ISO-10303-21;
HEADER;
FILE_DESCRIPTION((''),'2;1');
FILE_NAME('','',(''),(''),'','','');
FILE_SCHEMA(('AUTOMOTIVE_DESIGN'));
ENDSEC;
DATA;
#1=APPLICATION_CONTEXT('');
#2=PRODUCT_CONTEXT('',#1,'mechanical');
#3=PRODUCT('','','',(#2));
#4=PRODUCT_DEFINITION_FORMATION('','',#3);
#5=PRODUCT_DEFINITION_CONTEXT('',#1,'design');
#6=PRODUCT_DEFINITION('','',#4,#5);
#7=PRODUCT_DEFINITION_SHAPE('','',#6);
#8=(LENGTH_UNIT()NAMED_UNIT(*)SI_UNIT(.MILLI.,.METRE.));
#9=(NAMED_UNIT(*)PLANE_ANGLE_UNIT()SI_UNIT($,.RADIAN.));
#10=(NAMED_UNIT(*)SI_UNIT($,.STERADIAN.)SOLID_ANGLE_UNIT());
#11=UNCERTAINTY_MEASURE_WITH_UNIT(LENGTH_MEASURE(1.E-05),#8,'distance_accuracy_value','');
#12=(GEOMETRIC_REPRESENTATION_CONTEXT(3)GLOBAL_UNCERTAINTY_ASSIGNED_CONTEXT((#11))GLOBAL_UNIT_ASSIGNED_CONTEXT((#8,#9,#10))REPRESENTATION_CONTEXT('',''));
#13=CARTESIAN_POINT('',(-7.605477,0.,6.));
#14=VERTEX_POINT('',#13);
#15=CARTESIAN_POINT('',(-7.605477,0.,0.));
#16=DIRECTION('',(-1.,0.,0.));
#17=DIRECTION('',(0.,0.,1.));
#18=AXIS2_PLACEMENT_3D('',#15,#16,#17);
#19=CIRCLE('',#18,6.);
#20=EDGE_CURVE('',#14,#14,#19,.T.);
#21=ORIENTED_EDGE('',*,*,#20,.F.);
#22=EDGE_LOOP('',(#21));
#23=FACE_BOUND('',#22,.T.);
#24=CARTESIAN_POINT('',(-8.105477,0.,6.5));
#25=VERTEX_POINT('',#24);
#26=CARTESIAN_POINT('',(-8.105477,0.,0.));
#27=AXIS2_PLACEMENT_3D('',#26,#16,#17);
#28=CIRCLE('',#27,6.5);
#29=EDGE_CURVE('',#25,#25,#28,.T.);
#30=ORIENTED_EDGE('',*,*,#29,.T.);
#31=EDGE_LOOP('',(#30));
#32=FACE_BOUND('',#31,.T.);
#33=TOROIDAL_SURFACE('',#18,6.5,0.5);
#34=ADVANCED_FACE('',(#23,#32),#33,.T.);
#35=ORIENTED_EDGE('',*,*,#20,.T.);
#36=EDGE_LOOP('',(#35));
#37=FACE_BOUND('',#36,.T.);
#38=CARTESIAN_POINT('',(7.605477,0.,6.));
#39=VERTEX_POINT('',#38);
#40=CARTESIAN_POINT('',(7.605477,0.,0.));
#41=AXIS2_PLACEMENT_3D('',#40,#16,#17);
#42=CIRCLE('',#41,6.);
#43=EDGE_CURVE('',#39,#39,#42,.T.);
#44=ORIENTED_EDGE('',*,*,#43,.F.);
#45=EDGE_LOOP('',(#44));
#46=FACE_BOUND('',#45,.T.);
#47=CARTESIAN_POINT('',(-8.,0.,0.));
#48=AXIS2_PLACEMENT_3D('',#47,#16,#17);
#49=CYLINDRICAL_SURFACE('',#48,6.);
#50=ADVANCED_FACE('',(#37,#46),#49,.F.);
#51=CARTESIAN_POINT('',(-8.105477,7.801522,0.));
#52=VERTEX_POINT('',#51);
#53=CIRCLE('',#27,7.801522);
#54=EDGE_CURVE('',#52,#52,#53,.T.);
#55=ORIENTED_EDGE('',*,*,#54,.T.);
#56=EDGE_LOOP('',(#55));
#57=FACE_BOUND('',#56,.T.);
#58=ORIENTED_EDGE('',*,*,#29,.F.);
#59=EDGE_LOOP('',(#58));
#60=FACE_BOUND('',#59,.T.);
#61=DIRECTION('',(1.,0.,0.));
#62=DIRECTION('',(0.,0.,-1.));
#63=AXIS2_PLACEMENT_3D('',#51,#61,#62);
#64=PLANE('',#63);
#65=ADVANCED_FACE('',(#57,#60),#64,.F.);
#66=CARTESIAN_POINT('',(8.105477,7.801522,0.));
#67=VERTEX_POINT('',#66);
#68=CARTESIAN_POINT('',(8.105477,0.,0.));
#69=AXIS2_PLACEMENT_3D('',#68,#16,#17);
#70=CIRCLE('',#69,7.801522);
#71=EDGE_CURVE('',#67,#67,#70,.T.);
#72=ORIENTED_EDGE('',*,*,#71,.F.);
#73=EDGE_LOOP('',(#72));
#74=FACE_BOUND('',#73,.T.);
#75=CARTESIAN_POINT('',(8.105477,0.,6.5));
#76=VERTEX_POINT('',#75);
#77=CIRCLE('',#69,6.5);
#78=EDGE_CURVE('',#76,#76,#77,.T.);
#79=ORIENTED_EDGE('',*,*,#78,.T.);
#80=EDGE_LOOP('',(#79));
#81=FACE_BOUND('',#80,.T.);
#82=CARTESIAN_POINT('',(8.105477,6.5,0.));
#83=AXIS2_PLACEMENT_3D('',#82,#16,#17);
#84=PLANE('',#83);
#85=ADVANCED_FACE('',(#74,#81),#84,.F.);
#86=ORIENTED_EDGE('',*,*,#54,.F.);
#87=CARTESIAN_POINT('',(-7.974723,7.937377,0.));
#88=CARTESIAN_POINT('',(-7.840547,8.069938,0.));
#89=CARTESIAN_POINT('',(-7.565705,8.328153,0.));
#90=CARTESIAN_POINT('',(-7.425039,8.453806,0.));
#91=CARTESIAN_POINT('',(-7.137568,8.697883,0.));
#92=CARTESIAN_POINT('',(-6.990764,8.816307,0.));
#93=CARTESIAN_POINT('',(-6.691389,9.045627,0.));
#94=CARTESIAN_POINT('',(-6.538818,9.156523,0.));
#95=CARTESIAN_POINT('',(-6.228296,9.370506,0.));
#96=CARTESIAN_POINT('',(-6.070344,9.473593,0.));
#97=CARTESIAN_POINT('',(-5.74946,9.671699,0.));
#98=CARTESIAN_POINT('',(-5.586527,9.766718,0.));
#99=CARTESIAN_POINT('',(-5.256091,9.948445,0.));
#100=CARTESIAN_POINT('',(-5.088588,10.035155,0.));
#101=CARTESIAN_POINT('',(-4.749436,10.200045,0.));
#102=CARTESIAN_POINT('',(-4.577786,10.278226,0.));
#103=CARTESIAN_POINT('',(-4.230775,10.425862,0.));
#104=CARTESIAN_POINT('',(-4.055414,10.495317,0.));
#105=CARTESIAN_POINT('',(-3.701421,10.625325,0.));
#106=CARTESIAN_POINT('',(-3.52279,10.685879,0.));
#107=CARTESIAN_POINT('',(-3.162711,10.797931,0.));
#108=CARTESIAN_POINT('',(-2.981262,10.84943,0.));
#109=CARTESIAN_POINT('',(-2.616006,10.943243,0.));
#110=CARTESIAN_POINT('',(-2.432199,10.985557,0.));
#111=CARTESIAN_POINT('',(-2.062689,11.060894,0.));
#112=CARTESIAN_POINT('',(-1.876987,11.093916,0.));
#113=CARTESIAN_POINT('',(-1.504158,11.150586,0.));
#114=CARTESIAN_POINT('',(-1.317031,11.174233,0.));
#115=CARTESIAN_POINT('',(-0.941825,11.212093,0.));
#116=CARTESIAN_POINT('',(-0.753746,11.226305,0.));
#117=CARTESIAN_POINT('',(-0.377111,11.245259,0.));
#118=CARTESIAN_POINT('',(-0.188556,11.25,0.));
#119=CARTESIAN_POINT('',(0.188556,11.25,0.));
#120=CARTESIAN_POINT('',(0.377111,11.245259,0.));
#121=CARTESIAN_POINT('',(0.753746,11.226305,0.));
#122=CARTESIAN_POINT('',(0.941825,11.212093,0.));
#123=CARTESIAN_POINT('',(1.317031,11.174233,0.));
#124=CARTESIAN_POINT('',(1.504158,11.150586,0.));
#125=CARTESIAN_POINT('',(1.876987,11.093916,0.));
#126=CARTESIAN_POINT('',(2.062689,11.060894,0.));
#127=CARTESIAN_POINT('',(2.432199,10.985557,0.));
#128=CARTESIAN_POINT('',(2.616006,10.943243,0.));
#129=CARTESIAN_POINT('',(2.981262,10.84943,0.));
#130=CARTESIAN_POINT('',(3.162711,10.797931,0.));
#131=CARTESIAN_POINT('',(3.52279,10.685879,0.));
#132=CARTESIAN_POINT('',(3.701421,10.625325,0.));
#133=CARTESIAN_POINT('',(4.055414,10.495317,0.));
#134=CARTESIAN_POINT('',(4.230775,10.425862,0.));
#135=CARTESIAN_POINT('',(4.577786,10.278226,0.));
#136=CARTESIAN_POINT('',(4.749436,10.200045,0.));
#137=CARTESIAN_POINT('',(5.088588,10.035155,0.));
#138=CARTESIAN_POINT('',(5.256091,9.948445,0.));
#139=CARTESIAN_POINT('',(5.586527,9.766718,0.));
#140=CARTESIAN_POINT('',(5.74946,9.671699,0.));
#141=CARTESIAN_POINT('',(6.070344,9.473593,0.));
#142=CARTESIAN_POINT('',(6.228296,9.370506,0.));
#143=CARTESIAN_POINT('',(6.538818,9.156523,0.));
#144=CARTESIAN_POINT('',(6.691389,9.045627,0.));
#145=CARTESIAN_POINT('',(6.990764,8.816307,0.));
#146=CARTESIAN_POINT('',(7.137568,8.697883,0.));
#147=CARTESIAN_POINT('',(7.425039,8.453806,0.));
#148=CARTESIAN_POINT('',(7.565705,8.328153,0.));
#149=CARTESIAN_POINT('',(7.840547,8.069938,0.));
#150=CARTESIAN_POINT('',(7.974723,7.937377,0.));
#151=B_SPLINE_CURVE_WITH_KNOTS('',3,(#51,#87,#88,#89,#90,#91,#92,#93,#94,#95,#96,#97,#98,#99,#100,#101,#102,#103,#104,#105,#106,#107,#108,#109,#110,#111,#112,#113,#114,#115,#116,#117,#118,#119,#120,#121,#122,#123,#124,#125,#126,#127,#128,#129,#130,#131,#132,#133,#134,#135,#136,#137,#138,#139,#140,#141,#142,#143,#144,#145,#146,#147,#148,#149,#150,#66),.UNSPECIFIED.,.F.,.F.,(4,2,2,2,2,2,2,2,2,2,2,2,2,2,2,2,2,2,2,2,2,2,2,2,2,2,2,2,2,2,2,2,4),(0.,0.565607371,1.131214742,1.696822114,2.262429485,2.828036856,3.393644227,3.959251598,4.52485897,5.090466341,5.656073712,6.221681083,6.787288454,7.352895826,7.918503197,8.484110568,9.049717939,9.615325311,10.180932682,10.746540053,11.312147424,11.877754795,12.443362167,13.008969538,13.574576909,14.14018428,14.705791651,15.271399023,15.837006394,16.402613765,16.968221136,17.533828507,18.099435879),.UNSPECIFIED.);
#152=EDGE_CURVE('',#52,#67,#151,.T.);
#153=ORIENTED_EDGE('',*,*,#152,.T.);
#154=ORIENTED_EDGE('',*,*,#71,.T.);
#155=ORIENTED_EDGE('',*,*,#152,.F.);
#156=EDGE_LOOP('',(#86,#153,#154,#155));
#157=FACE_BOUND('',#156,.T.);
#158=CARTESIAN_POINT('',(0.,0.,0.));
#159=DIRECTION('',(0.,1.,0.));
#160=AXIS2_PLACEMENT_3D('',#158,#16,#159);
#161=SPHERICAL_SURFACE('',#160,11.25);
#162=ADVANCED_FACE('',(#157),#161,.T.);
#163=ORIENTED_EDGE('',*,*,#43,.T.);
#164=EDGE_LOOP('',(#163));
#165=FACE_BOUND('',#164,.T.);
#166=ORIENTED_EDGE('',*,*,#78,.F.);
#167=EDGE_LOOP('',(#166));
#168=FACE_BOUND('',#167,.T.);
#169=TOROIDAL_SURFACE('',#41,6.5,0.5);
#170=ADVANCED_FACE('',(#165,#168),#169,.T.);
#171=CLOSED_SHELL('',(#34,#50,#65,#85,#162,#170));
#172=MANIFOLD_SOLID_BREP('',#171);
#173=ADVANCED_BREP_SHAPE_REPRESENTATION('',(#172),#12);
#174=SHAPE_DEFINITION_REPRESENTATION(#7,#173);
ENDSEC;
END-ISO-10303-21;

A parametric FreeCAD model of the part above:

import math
import FreeCAD as App
import Part
import Sketcher

V = App.Vector

doc = App.newDocument("Part")
body = doc.addObject("PartDesign::Body", "Body")

# Sketch on XY plane
sketch1 = body.newObject("Sketcher::SketchObject", "Sketch")
sketch1.AttachmentSupport = (doc.getObject("XY_Plane"), [""])
sketch1.MapMode = "FlatFace"
sketch1.addGeometry([
    Part.LineSegment(V(-8.11, 7.8, 0), V(-8.11, 6.5, 0)),  # 0
    Part.ArcOfCircle(Part.Circle(V(-7.61, 6.5, 0), V(0, 0, 1), 0.5), math.radians(180), math.radians(270)),  # 1
    Part.LineSegment(V(-7.61, 6, 0), V(7.61, 6, 0)),  # 2
    Part.ArcOfCircle(Part.Circle(V(7.61, 6.5, 0), V(0, 0, 1), 0.5), math.radians(-90), math.radians(0)),  # 3
    Part.LineSegment(V(8.11, 6.5, 0), V(8.11, 7.8, 0)),  # 4
    Part.ArcOfCircle(Part.Circle(V(0, 0, 0), V(0, 0, 1), 11.25), math.radians(44), math.radians(136)),  # 5
], False)
sketch1.addConstraint([
    Sketcher.Constraint("Tangent", 0, 2, 1, 1),
    Sketcher.Constraint("Tangent", 1, 2, 2, 1),
    Sketcher.Constraint("Tangent", 2, 2, 3, 1),
    Sketcher.Constraint("Tangent", 3, 2, 4, 1),
    Sketcher.Constraint("Coincident", 4, 2, 5, 1),
    Sketcher.Constraint("Coincident", 5, 2, 0, 1),
    Sketcher.Constraint("Vertical", 0),
    Sketcher.Constraint("Horizontal", 2),
    Sketcher.Constraint("Vertical", 4),
    Sketcher.Constraint("Coincident", 5, 3, -1, 1),
    Sketcher.Constraint("Equal", 1, 3),
    Sketcher.Constraint("Horizontal", 4, 2, 5, 2),
    Sketcher.Constraint("Radius", 1, 0.5),
    Sketcher.Constraint("Radius", 5, 11.25),
    Sketcher.Constraint("DistanceY", -1, 1, 1, 2, 6.0),
    Sketcher.Constraint("DistanceY", 0, 2, 0, 1, 1.301522),
])
revolution = body.newObject("PartDesign::Revolution", "Revolution")
revolution.Profile = sketch1
revolution.ReferenceAxis = (sketch1, ["H_Axis"])
revolution.Angle = 360

doc.recompute()
